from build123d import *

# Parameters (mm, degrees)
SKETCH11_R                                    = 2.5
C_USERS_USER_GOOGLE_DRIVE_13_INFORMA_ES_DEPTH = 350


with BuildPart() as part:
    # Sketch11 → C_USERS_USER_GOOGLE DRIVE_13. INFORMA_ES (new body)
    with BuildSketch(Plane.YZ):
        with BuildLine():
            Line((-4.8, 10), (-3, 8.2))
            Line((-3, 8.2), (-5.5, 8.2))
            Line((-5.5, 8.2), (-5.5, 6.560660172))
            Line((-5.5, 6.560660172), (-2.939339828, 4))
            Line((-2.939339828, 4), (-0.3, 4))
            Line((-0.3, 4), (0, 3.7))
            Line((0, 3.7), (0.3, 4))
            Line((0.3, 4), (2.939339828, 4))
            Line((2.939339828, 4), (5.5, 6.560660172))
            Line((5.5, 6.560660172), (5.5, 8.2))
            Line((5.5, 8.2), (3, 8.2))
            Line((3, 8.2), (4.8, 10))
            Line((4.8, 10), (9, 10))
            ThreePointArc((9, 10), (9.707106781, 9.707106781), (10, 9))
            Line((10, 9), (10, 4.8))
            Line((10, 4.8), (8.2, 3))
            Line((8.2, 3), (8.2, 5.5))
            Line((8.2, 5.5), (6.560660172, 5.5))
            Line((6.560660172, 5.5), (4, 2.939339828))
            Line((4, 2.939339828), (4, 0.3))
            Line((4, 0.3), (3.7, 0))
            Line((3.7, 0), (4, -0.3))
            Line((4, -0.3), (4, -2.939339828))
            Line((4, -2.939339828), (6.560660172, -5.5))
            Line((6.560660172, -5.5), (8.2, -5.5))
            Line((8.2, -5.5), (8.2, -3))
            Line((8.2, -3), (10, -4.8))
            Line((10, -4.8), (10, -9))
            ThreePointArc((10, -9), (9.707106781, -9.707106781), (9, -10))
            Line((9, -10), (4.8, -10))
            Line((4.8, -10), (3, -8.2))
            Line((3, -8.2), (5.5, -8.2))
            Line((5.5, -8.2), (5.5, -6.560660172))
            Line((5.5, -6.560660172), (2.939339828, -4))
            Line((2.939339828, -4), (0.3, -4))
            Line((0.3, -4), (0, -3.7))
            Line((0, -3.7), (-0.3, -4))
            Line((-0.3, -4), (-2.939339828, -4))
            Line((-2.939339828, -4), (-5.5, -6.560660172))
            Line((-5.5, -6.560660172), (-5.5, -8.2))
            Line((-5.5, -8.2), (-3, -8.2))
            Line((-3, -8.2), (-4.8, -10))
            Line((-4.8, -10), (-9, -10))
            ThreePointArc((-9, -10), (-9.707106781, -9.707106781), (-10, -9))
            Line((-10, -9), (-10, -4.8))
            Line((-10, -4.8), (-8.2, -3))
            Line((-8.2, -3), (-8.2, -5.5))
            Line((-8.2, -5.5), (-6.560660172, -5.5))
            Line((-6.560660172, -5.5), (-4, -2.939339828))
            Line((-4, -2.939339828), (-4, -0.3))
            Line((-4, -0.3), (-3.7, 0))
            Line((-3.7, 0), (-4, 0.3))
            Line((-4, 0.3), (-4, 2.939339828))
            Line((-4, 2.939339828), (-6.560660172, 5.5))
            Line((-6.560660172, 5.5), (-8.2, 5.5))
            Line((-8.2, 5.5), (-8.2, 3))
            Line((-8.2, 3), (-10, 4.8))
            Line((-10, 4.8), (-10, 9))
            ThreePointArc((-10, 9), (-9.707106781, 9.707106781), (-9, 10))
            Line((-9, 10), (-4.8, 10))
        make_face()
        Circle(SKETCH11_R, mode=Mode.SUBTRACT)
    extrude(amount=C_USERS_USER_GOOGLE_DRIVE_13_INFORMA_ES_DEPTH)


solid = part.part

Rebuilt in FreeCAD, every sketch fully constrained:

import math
import FreeCAD as App
import Part
import Sketcher
from FreeCAD import Vector
Q = App.Units.Quantity

doc = App.newDocument("Part")
params = doc.addObject("Spreadsheet::Sheet", "Params")
for row, (alias, value) in enumerate([
    ("sketch1_diameter", "5 mm"),
    ("sketch1_radius", "1 mm"),
    ("sketch1_width", "4.2 mm"),
    ("sketch1_width2", "2.5 mm"),
    ("pad1_length", "350 mm"),
], start=1):
    params.set(f"A{row}", alias)
    params.set(f"B{row}", "=" + value)
    params.setAlias(f"B{row}", alias)

body = doc.addObject("PartDesign::Body", "Body")

# Sketch on YZ plane
sketch1 = body.newObject("Sketcher::SketchObject", "Sketch")
sketch1.AttachmentSupport = (doc.getObject("YZ_Plane"), [""])
sketch1.MapMode = "FlatFace"
sketch1.addGeometry(Part.LineSegment(Vector(-3, 8.2, 0), Vector(-4.8, 10, 0)), False)
sketch1.addGeometry(Part.LineSegment(Vector(-4.8, 10, 0), Vector(-9, 10, 0)), False)
sketch1.addGeometry(Part.ArcOfCircle(Part.Circle(Vector(-9, 9, 0), Vector(0, 0, 1), 1), math.radians(90), math.radians(180)), False)
sketch1.addGeometry(Part.LineSegment(Vector(-10, 9, 0), Vector(-10, 4.8, 0)), False)
sketch1.addGeometry(Part.LineSegment(Vector(-10, 4.8, 0), Vector(-8.2, 3, 0)), False)
sketch1.addGeometry(Part.LineSegment(Vector(-8.2, 3, 0), Vector(-8.2, 5.5, 0)), False)
sketch1.addGeometry(Part.LineSegment(Vector(-8.2, 5.5, 0), Vector(-6.56, 5.5, 0)), False)
sketch1.addGeometry(Part.LineSegment(Vector(-6.56, 5.5, 0), Vector(-4, 2.94, 0)), False)
sketch1.addGeometry(Part.LineSegment(Vector(-4, 2.94, 0), Vector(-4, 0.3, 0)), False)
sketch1.addGeometry(Part.LineSegment(Vector(-4, 0.3, 0), Vector(-3.7, 0, 0)), False)
sketch1.addGeometry(Part.LineSegment(Vector(-3.7, 0, 0), Vector(-4, -0.3, 0)), False)
sketch1.addGeometry(Part.LineSegment(Vector(-4, -0.3, 0), Vector(-4, -2.94, 0)), False)
sketch1.addGeometry(Part.LineSegment(Vector(-4, -2.94, 0), Vector(-6.56, -5.5, 0)), False)
sketch1.addGeometry(Part.LineSegment(Vector(-6.56, -5.5, 0), Vector(-8.2, -5.5, 0)), False)
sketch1.addGeometry(Part.LineSegment(Vector(-8.2, -5.5, 0), Vector(-8.2, -3, 0)), False)
sketch1.addGeometry(Part.LineSegment(Vector(-8.2, -3, 0), Vector(-10, -4.8, 0)), False)
sketch1.addGeometry(Part.LineSegment(Vector(-10, -4.8, 0), Vector(-10, -9, 0)), False)
sketch1.addGeometry(Part.ArcOfCircle(Part.Circle(Vector(-9, -9, 0), Vector(0, 0, 1), 1), math.radians(-180), math.radians(-90)), False)
sketch1.addGeometry(Part.LineSegment(Vector(-9, -10, 0), Vector(-4.8, -10, 0)), False)
sketch1.addGeometry(Part.LineSegment(Vector(-4.8, -10, 0), Vector(-3, -8.2, 0)), False)
sketch1.addGeometry(Part.LineSegment(Vector(-3, -8.2, 0), Vector(-5.5, -8.2, 0)), False)
sketch1.addGeometry(Part.LineSegment(Vector(-5.5, -8.2, 0), Vector(-5.5, -6.56, 0)), False)
sketch1.addGeometry(Part.LineSegment(Vector(-5.5, -6.56, 0), Vector(-2.94, -4, 0)), False)
sketch1.addGeometry(Part.LineSegment(Vector(-2.94, -4, 0), Vector(-0.3, -4, 0)), False)
sketch1.addGeometry(Part.LineSegment(Vector(-0.3, -4, 0), Vector(0, -3.7, 0)), False)
sketch1.addGeometry(Part.LineSegment(Vector(0, -3.7, 0), Vector(0.3, -4, 0)), False)
sketch1.addGeometry(Part.LineSegment(Vector(0.3, -4, 0), Vector(2.94, -4, 0)), False)
sketch1.addGeometry(Part.LineSegment(Vector(2.94, -4, 0), Vector(5.5, -6.56, 0)), False)
sketch1.addGeometry(Part.LineSegment(Vector(5.5, -6.56, 0), Vector(5.5, -8.2, 0)), False)
sketch1.addGeometry(Part.LineSegment(Vector(5.5, -8.2, 0), Vector(3, -8.2, 0)), False)
sketch1.addGeometry(Part.LineSegment(Vector(3, -8.2, 0), Vector(4.8, -10, 0)), False)
sketch1.addGeometry(Part.LineSegment(Vector(4.8, -10, 0), Vector(9, -10, 0)), False)
sketch1.addGeometry(Part.ArcOfCircle(Part.Circle(Vector(9, -9, 0), Vector(0, 0, 1), 1), math.radians(-90), math.radians(0)), False)
sketch1.addGeometry(Part.LineSegment(Vector(10, -9, 0), Vector(10, -4.8, 0)), False)
sketch1.addGeometry(Part.LineSegment(Vector(10, -4.8, 0), Vector(8.2, -3, 0)), False)
sketch1.addGeometry(Part.LineSegment(Vector(8.2, -3, 0), Vector(8.2, -5.5, 0)), False)
sketch1.addGeometry(Part.LineSegment(Vector(8.2, -5.5, 0), Vector(6.56, -5.5, 0)), False)
sketch1.addGeometry(Part.LineSegment(Vector(6.56, -5.5, 0), Vector(4, -2.94, 0)), False)
sketch1.addGeometry(Part.LineSegment(Vector(4, -2.94, 0), Vector(4, -0.3, 0)), False)
sketch1.addGeometry(Part.LineSegment(Vector(4, -0.3, 0), Vector(3.7, 0, 0)), False)
sketch1.addGeometry(Part.LineSegment(Vector(3.7, 0, 0), Vector(4, 0.3, 0)), False)
sketch1.addGeometry(Part.LineSegment(Vector(4, 0.3, 0), Vector(4, 2.94, 0)), False)
sketch1.addGeometry(Part.LineSegment(Vector(4, 2.94, 0), Vector(6.56, 5.5, 0)), False)
sketch1.addGeometry(Part.LineSegment(Vector(6.56, 5.5, 0), Vector(8.2, 5.5, 0)), False)
sketch1.addGeometry(Part.LineSegment(Vector(8.2, 5.5, 0), Vector(8.2, 3, 0)), False)
sketch1.addGeometry(Part.LineSegment(Vector(8.2, 3, 0), Vector(10, 4.8, 0)), False)
sketch1.addGeometry(Part.LineSegment(Vector(10, 4.8, 0), Vector(10, 9, 0)), False)
sketch1.addGeometry(Part.ArcOfCircle(Part.Circle(Vector(9, 9, 0), Vector(0, 0, 1), 1), math.radians(0), math.radians(90)), False)
sketch1.addGeometry(Part.LineSegment(Vector(9, 10, 0), Vector(4.8, 10, 0)), False)
sketch1.addGeometry(Part.LineSegment(Vector(4.8, 10, 0), Vector(3, 8.2, 0)), False)
sketch1.addGeometry(Part.LineSegment(Vector(3, 8.2, 0), Vector(5.5, 8.2, 0)), False)
sketch1.addGeometry(Part.LineSegment(Vector(5.5, 8.2, 0), Vector(5.5, 6.56, 0)), False)
sketch1.addGeometry(Part.LineSegment(Vector(5.5, 6.56, 0), Vector(2.94, 4, 0)), False)
sketch1.addGeometry(Part.LineSegment(Vector(2.94, 4, 0), Vector(0.3, 4, 0)), False)
sketch1.addGeometry(Part.LineSegment(Vector(0.3, 4, 0), Vector(0, 3.7, 0)), False)
sketch1.addGeometry(Part.LineSegment(Vector(0, 3.7, 0), Vector(-0.3, 4, 0)), False)
sketch1.addGeometry(Part.LineSegment(Vector(-0.3, 4, 0), Vector(-2.94, 4, 0)), False)
sketch1.addGeometry(Part.LineSegment(Vector(-2.94, 4, 0), Vector(-5.5, 6.56, 0)), False)
sketch1.addGeometry(Part.LineSegment(Vector(-5.5, 6.56, 0), Vector(-5.5, 8.2, 0)), False)
sketch1.addGeometry(Part.LineSegment(Vector(-5.5, 8.2, 0), Vector(-3, 8.2, 0)), False)
sketch1.addGeometry(Part.Circle(Vector(0, 0, 0), Vector(0, 0, 1), 2.5), False)
sketch1.addConstraint(Sketcher.Constraint("Coincident", 0, 2, 1, 1))
sketch1.addConstraint(Sketcher.Constraint("Tangent", 1, 2, 2, 1))
sketch1.addConstraint(Sketcher.Constraint("Tangent", 2, 2, 3, 1))
sketch1.addConstraint(Sketcher.Constraint("Coincident", 3, 2, 4, 1))
sketch1.addConstraint(Sketcher.Constraint("Coincident", 4, 2, 5, 1))
sketch1.addConstraint(Sketcher.Constraint("Coincident", 5, 2, 6, 1))
sketch1.addConstraint(Sketcher.Constraint("Coincident", 6, 2, 7, 1))
sketch1.addConstraint(Sketcher.Constraint("Coincident", 7, 2, 8, 1))
sketch1.addConstraint(Sketcher.Constraint("Coincident", 8, 2, 9, 1))
sketch1.addConstraint(Sketcher.Constraint("Coincident", 9, 2, 10, 1))
sketch1.addConstraint(Sketcher.Constraint("Coincident", 10, 2, 11, 1))
sketch1.addConstraint(Sketcher.Constraint("Coincident", 11, 2, 12, 1))
sketch1.addConstraint(Sketcher.Constraint("Coincident", 12, 2, 13, 1))
sketch1.addConstraint(Sketcher.Constraint("Coincident", 13, 2, 14, 1))
sketch1.addConstraint(Sketcher.Constraint("Coincident", 14, 2, 15, 1))
sketch1.addConstraint(Sketcher.Constraint("Coincident", 15, 2, 16, 1))
sketch1.addConstraint(Sketcher.Constraint("Tangent", 16, 2, 17, 1))
sketch1.addConstraint(Sketcher.Constraint("Tangent", 17, 2, 18, 1))
sketch1.addConstraint(Sketcher.Constraint("Coincident", 18, 2, 19, 1))
sketch1.addConstraint(Sketcher.Constraint("Coincident", 19, 2, 20, 1))
sketch1.addConstraint(Sketcher.Constraint("Coincident", 20, 2, 21, 1))
sketch1.addConstraint(Sketcher.Constraint("Coincident", 21, 2, 22, 1))
sketch1.addConstraint(Sketcher.Constraint("Coincident", 22, 2, 23, 1))
sketch1.addConstraint(Sketcher.Constraint("Coincident", 23, 2, 24, 1))
sketch1.addConstraint(Sketcher.Constraint("Coincident", 24, 2, 25, 1))
sketch1.addConstraint(Sketcher.Constraint("Coincident", 25, 2, 26, 1))
sketch1.addConstraint(Sketcher.Constraint("Coincident", 26, 2, 27, 1))
sketch1.addConstraint(Sketcher.Constraint("Coincident", 27, 2, 28, 1))
sketch1.addConstraint(Sketcher.Constraint("Coincident", 28, 2, 29, 1))
sketch1.addConstraint(Sketcher.Constraint("Coincident", 29, 2, 30, 1))
sketch1.addConstraint(Sketcher.Constraint("Coincident", 30, 2, 31, 1))
sketch1.addConstraint(Sketcher.Constraint("Tangent", 31, 2, 32, 1))
sketch1.addConstraint(Sketcher.Constraint("Tangent", 32, 2, 33, 1))
sketch1.addConstraint(Sketcher.Constraint("Coincident", 33, 2, 34, 1))
sketch1.addConstraint(Sketcher.Constraint("Coincident", 34, 2, 35, 1))
sketch1.addConstraint(Sketcher.Constraint("Coincident", 35, 2, 36, 1))
sketch1.addConstraint(Sketcher.Constraint("Coincident", 36, 2, 37, 1))
sketch1.addConstraint(Sketcher.Constraint("Coincident", 37, 2, 38, 1))
sketch1.addConstraint(Sketcher.Constraint("Coincident", 38, 2, 39, 1))
sketch1.addConstraint(Sketcher.Constraint("Coincident", 39, 2, 40, 1))
sketch1.addConstraint(Sketcher.Constraint("Coincident", 40, 2, 41, 1))
sketch1.addConstraint(Sketcher.Constraint("Coincident", 41, 2, 42, 1))
sketch1.addConstraint(Sketcher.Constraint("Coincident", 42, 2, 43, 1))
sketch1.addConstraint(Sketcher.Constraint("Coincident", 43, 2, 44, 1))
sketch1.addConstraint(Sketcher.Constraint("Coincident", 44, 2, 45, 1))
sketch1.addConstraint(Sketcher.Constraint("Coincident", 45, 2, 46, 1))
sketch1.addConstraint(Sketcher.Constraint("Tangent", 46, 2, 47, 1))
sketch1.addConstraint(Sketcher.Constraint("Tangent", 47, 2, 48, 1))
sketch1.addConstraint(Sketcher.Constraint("Coincident", 48, 2, 49, 1))
sketch1.addConstraint(Sketcher.Constraint("Coincident", 49, 2, 50, 1))
sketch1.addConstraint(Sketcher.Constraint("Coincident", 50, 2, 51, 1))
sketch1.addConstraint(Sketcher.Constraint("Coincident", 51, 2, 52, 1))
sketch1.addConstraint(Sketcher.Constraint("Coincident", 52, 2, 53, 1))
sketch1.addConstraint(Sketcher.Constraint("Coincident", 53, 2, 54, 1))
sketch1.addConstraint(Sketcher.Constraint("Coincident", 54, 2, 55, 1))
sketch1.addConstraint(Sketcher.Constraint("Coincident", 55, 2, 56, 1))
sketch1.addConstraint(Sketcher.Constraint("Coincident", 56, 2, 57, 1))
sketch1.addConstraint(Sketcher.Constraint("Coincident", 57, 2, 58, 1))
sketch1.addConstraint(Sketcher.Constraint("Coincident", 58, 2, 59, 1))
sketch1.addConstraint(Sketcher.Constraint("Coincident", 59, 2, 0, 1))
sketch1.addConstraint(Sketcher.Constraint("Horizontal", 1))
sketch1.addConstraint(Sketcher.Constraint("Vertical", 3))
sketch1.addConstraint(Sketcher.Constraint("Vertical", 5))
sketch1.addConstraint(Sketcher.Constraint("Horizontal", 6))
sketch1.addConstraint(Sketcher.Constraint("Vertical", 8))
sketch1.addConstraint(Sketcher.Constraint("Vertical", 11))
sketch1.addConstraint(Sketcher.Constraint("Horizontal", 13))
sketch1.addConstraint(Sketcher.Constraint("Vertical", 14))
sketch1.addConstraint(Sketcher.Constraint("Vertical", 16))
sketch1.addConstraint(Sketcher.Constraint("Horizontal", 18))
sketch1.addConstraint(Sketcher.Constraint("Horizontal", 20))
sketch1.addConstraint(Sketcher.Constraint("Vertical", 21))
sketch1.addConstraint(Sketcher.Constraint("Horizontal", 23))
sketch1.addConstraint(Sketcher.Constraint("Horizontal", 26))
sketch1.addConstraint(Sketcher.Constraint("Vertical", 28))
sketch1.addConstraint(Sketcher.Constraint("Horizontal", 29))
sketch1.addConstraint(Sketcher.Constraint("Horizontal", 31))
sketch1.addConstraint(Sketcher.Constraint("Vertical", 33))
sketch1.addConstraint(Sketcher.Constraint("Vertical", 35))
sketch1.addConstraint(Sketcher.Constraint("Horizontal", 36))
sketch1.addConstraint(Sketcher.Constraint("Vertical", 38))
sketch1.addConstraint(Sketcher.Constraint("Vertical", 41))
sketch1.addConstraint(Sketcher.Constraint("Horizontal", 43))
sketch1.addConstraint(Sketcher.Constraint("Vertical", 44))
sketch1.addConstraint(Sketcher.Constraint("Vertical", 46))
sketch1.addConstraint(Sketcher.Constraint("Horizontal", 48))
sketch1.addConstraint(Sketcher.Constraint("Horizontal", 50))
sketch1.addConstraint(Sketcher.Constraint("Vertical", 51))
sketch1.addConstraint(Sketcher.Constraint("Horizontal", 53))
sketch1.addConstraint(Sketcher.Constraint("Horizontal", 56))
sketch1.addConstraint(Sketcher.Constraint("Vertical", 58))
sketch1.addConstraint(Sketcher.Constraint("Horizontal", 59))
sketch1.addConstraint(Sketcher.Constraint("Coincident", 60, 3, -1, 1))
sketch1.addConstraint(Sketcher.Constraint("Equal", 2, 17))
sketch1.addConstraint(Sketcher.Constraint("Equal", 17, 32))
sketch1.addConstraint(Sketcher.Constraint("Equal", 32, 47))
sketch1.addConstraint(Sketcher.Constraint("Symmetric", 2, 3, 32, 3, -1, 1))
sketch1.addConstraint(Sketcher.Constraint("Symmetric", 17, 3, 47, 3, -1, 1))
sketch1.addConstraint(Sketcher.Constraint("Symmetric", 4, 2, 34, 2, -1, 1))
sketch1.addConstraint(Sketcher.Constraint("Symmetric", 6, 2, 36, 2, -1, 1))
sketch1.addConstraint(Sketcher.Constraint("Symmetric", 7, 2, 37, 2, -1, 1))
sketch1.addConstraint(Sketcher.Constraint("Symmetric", 9, 2, 39, 2, -1, 1))
sketch1.addConstraint(Sketcher.Constraint("Symmetric", 10, 2, 40, 2, -1, 1))
sketch1.addConstraint(Sketcher.Constraint("Symmetric", 12, 2, 42, 2, -1, 1))
sketch1.addConstraint(Sketcher.Constraint("Symmetric", 14, 2, 44, 2, -1, 1))
sketch1.addConstraint(Sketcher.Constraint("Symmetric", 19, 2, 49, 2, -1, 1))
sketch1.addConstraint(Sketcher.Constraint("Symmetric", 21, 2, 51, 2, -1, 1))
sketch1.addConstraint(Sketcher.Constraint("Symmetric", 22, 2, 52, 2, -1, 1))
sketch1.addConstraint(Sketcher.Constraint("Symmetric", 24, 2, 54, 2, -1, 1))
sketch1.addConstraint(Sketcher.Constraint("Symmetric", 25, 2, 55, 2, -1, 1))
sketch1.addConstraint(Sketcher.Constraint("Symmetric", 27, 2, 57, 2, -1, 1))
sketch1.addConstraint(Sketcher.Constraint("Symmetric", 29, 2, 59, 2, -1, 1))
sketch1.addConstraint(Sketcher.Constraint("Symmetric", 17, 3, 32, 3, -2))
sketch1.addConstraint(Sketcher.Constraint("Symmetric", 23, 2, 25, 2, -2))
sketch1.addConstraint(Sketcher.Constraint("Symmetric", 21, 2, 27, 2, -2))
sketch1.addConstraint(Sketcher.Constraint("Symmetric", 19, 2, 29, 2, -2))
sketch1.addConstraint(Sketcher.Constraint("Symmetric", 14, 2, 34, 2, -2))
sketch1.addConstraint(Sketcher.Constraint("Symmetric", 12, 2, 36, 2, -2))
sketch1.addConstraint(Sketcher.Constraint("Symmetric", 11, 2, 37, 2, -2))
sketch1.addConstraint(Sketcher.Constraint("PointOnObject", 9, 2, -1))
sketch1.addConstraint(Sketcher.Constraint("PointOnObject", 24, 2, -2))
sketch1.addConstraint(Sketcher.Constraint("Parallel", 0, 4))
sketch1.addConstraint(Sketcher.Constraint("Parallel", 4, 7))
sketch1.addConstraint(Sketcher.Constraint("Parallel", 7, 9))
sketch1.addConstraint(Sketcher.Constraint("Perpendicular", 9, 10))
sketch1.addConstraint(Sketcher.Constraint("Parallel", 10, 12))
sketch1.addConstraint(Sketcher.Constraint("Parallel", 12, 15))
sketch1.addConstraint(Sketcher.Constraint("Parallel", 15, 19))
sketch1.addConstraint(Sketcher.Constraint("Parallel", 19, 22))
sketch1.addConstraint(Sketcher.Constraint("Parallel", 22, 24))
sketch1.addConstraint(Sketcher.Constraint("Parallel", 25, 27))
sketch1.addConstraint(Sketcher.Constraint("Parallel", 27, 30))
sketch1.addConstraint(Sketcher.Constraint("Parallel", 30, 34))
sketch1.addConstraint(Sketcher.Constraint("Parallel", 37, 39))
sketch1.addConstraint(Sketcher.Constraint("Parallel", 40, 42))
sketch1.addConstraint(Sketcher.Constraint("Parallel", 42, 45))
sketch1.addConstraint(Sketcher.Constraint("Parallel", 45, 49))
sketch1.addConstraint(Sketcher.Constraint("Parallel", 52, 54))
sketch1.addConstraint(Sketcher.Constraint("Parallel", 55, 57))
sketch1.addConstraint(Sketcher.Constraint("Equal", 48, 3))
sketch1.addConstraint(Sketcher.Constraint("Equal", 59, 5))
sketch1.addConstraint(Sketcher.Constraint("Equal", 56, 8))
sketch1.addConstraint(Sketcher.Constraint("Equal", 43, 21))
sketch1.addConstraint(Sketcher.Constraint("Equal", 0, 4))
sketch1.addConstraint(Sketcher.Constraint("Equal", 12, 22))
sketch1.addConstraint(Sketcher.Constraint("Equal", 10, 24))
sketch1.addConstraint(Sketcher.Constraint("Diameter", 60, Q("5 mm")))
sketch1.addConstraint(Sketcher.Constraint("Radius", 2, Q("1 mm")))
sketch1.addConstraint(Sketcher.Constraint("DistanceX", 1, 2, 1, 1, Q("4.2 mm")))
sketch1.addConstraint(Sketcher.Constraint("DistanceX", 20, 2, 20, 1, Q("2.5 mm")))
sketch1.addConstraint(Sketcher.Constraint("DistanceX", 2, 3, -1, 1, Q("9 mm")))
sketch1.addConstraint(Sketcher.Constraint("DistanceY", -1, 1, 4, 2, Q("3 mm")))
sketch1.addConstraint(Sketcher.Constraint("DistanceX", 7, 2, -1, 1, Q("4 mm")))
sketch1.addConstraint(Sketcher.Constraint("DistanceY", -1, 1, 8, 2, Q("0.3 mm")))
sketch1.addConstraint(Sketcher.Constraint("DistanceX", 6, 1, 6, 2, Q("1.63934 mm")))
sketch1.setExpression("Constraints[146]", "Params.sketch1_diameter")
sketch1.setExpression("Constraints[147]", "Params.sketch1_radius")
sketch1.setExpression("Constraints[148]", "Params.sketch1_width")
sketch1.setExpression("Constraints[149]", "Params.sketch1_width2")
pad1 = body.newObject("PartDesign::Pad", "Pad")
pad1.Profile = sketch1
pad1.setExpression("Length", "Params.pad1_length")

doc.recompute()
